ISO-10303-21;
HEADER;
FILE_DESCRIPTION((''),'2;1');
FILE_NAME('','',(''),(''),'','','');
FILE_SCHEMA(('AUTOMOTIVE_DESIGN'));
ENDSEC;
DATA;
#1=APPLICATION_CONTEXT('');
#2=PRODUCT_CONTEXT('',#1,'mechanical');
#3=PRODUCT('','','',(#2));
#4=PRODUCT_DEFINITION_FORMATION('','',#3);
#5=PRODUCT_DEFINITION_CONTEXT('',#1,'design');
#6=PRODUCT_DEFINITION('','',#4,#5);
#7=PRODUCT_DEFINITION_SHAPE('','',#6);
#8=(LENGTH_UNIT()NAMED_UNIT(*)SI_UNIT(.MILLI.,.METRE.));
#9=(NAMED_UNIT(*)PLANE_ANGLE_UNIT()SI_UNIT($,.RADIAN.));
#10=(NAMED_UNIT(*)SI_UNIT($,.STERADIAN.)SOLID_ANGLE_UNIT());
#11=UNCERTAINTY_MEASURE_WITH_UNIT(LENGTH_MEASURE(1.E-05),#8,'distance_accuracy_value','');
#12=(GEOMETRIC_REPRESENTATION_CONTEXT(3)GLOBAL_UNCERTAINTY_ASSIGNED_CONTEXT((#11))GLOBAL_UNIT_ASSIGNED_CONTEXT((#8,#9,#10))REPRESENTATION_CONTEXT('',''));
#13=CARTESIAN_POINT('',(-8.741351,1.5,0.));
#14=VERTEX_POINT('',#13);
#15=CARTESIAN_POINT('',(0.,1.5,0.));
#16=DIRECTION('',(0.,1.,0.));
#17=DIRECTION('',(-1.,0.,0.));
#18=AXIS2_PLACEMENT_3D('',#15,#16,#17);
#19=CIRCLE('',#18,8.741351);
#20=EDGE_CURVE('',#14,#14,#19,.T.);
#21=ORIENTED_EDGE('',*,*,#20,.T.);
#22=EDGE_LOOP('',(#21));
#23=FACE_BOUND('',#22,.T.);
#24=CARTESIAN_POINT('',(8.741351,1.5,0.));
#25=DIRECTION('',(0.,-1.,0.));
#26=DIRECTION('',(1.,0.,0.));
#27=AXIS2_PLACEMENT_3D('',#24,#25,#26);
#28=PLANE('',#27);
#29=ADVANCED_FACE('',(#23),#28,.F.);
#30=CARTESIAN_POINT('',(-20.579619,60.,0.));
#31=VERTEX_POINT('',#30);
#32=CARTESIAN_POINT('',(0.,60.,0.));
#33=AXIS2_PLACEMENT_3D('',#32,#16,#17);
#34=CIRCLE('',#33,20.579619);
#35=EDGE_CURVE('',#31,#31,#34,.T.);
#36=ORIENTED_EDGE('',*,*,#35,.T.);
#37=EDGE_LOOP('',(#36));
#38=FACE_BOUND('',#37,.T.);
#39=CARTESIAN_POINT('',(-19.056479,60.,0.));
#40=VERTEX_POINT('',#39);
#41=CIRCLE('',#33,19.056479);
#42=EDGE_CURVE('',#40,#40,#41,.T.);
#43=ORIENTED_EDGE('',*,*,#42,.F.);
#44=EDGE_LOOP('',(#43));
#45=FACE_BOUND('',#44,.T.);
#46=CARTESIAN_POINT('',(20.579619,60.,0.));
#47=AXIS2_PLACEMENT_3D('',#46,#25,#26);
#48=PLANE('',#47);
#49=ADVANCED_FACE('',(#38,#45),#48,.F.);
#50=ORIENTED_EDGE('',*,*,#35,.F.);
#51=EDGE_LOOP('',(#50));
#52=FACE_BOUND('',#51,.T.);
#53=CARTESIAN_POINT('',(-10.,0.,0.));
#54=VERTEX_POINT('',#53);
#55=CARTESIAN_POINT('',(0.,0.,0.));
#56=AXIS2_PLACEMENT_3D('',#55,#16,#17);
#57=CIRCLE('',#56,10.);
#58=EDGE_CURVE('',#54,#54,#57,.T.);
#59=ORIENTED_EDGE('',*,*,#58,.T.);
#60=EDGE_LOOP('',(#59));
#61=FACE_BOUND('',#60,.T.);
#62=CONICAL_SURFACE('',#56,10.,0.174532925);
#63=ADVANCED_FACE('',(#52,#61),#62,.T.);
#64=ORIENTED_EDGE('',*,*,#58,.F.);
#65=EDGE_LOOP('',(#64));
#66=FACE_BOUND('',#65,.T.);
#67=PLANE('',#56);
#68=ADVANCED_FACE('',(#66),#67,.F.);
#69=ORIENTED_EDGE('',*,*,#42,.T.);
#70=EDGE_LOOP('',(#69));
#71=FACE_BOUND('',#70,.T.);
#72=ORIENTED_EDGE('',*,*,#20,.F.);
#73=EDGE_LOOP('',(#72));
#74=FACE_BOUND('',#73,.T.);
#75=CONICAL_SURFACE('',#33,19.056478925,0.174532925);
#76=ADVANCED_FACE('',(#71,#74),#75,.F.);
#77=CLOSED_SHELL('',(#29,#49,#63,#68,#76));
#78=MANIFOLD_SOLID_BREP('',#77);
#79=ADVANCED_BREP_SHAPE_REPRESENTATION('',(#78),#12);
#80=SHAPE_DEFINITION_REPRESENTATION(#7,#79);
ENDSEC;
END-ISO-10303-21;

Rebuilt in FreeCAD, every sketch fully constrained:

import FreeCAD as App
import Part
import Sketcher
from FreeCAD import Vector
Q = App.Units.Quantity


def add_polygon(sketch, points):
    """Adds a closed chain of lines whose ends are joined by coincident constraints."""
    first, n = sketch.GeometryCount, len(points)
    for a, b in zip(points, points[1:] + points[:1]):
        sketch.addGeometry(Part.LineSegment(App.Vector(*a, 0), App.Vector(*b, 0)), False)
    for i in range(n):
        sketch.addConstraint(Sketcher.Constraint("Coincident", first + i, 2, first + (i + 1) % n, 1))

doc = App.newDocument("Part")
body = doc.addObject("PartDesign::Body", "Body")

sketch1 = doc.addObject("Sketcher::SketchObject", "Sketch")
body.addObject(sketch1)
sketch1.AttachmentSupport = (doc.XY_Plane, [""])
sketch1.MapMode = "FlatFace"
add_polygon(sketch1, [(0, 0), (10, 0), (20.6, 60), (19.1, 60), (8.7, 1.5), (0, 1.5)])
sketch1.addConstraint([
    Sketcher.Constraint("Horizontal", 0),
    Sketcher.Constraint("Horizontal", 2),
    Sketcher.Constraint("Horizontal", 4),
    Sketcher.Constraint("Vertical", 5),
    Sketcher.Constraint("Coincident", 5, 2, -1, 1),
    Sketcher.Constraint("Parallel", 1, 3),
    Sketcher.Constraint("DistanceX", 0, 1, 0, 2, Q("10 mm")),
    Sketcher.Constraint("Angle", 1, Q("80 deg")),
    Sketcher.Constraint("DistanceY", 5, 2, 5, 1, Q("1.5 mm")),
    Sketcher.Constraint("DistanceY", -1, 1, 1, 2, Q("60 mm")),
    Sketcher.Constraint("DistanceX", 2, 2, 2, 1, Q("1.52314 mm")),
])
revolution = doc.addObject("PartDesign::Revolution", "Revolution")
body.addObject(revolution)
revolution.Profile = sketch1
revolution.ReferenceAxis = (sketch1, ["V_Axis"])
revolution.Angle = 360

doc.recompute()
